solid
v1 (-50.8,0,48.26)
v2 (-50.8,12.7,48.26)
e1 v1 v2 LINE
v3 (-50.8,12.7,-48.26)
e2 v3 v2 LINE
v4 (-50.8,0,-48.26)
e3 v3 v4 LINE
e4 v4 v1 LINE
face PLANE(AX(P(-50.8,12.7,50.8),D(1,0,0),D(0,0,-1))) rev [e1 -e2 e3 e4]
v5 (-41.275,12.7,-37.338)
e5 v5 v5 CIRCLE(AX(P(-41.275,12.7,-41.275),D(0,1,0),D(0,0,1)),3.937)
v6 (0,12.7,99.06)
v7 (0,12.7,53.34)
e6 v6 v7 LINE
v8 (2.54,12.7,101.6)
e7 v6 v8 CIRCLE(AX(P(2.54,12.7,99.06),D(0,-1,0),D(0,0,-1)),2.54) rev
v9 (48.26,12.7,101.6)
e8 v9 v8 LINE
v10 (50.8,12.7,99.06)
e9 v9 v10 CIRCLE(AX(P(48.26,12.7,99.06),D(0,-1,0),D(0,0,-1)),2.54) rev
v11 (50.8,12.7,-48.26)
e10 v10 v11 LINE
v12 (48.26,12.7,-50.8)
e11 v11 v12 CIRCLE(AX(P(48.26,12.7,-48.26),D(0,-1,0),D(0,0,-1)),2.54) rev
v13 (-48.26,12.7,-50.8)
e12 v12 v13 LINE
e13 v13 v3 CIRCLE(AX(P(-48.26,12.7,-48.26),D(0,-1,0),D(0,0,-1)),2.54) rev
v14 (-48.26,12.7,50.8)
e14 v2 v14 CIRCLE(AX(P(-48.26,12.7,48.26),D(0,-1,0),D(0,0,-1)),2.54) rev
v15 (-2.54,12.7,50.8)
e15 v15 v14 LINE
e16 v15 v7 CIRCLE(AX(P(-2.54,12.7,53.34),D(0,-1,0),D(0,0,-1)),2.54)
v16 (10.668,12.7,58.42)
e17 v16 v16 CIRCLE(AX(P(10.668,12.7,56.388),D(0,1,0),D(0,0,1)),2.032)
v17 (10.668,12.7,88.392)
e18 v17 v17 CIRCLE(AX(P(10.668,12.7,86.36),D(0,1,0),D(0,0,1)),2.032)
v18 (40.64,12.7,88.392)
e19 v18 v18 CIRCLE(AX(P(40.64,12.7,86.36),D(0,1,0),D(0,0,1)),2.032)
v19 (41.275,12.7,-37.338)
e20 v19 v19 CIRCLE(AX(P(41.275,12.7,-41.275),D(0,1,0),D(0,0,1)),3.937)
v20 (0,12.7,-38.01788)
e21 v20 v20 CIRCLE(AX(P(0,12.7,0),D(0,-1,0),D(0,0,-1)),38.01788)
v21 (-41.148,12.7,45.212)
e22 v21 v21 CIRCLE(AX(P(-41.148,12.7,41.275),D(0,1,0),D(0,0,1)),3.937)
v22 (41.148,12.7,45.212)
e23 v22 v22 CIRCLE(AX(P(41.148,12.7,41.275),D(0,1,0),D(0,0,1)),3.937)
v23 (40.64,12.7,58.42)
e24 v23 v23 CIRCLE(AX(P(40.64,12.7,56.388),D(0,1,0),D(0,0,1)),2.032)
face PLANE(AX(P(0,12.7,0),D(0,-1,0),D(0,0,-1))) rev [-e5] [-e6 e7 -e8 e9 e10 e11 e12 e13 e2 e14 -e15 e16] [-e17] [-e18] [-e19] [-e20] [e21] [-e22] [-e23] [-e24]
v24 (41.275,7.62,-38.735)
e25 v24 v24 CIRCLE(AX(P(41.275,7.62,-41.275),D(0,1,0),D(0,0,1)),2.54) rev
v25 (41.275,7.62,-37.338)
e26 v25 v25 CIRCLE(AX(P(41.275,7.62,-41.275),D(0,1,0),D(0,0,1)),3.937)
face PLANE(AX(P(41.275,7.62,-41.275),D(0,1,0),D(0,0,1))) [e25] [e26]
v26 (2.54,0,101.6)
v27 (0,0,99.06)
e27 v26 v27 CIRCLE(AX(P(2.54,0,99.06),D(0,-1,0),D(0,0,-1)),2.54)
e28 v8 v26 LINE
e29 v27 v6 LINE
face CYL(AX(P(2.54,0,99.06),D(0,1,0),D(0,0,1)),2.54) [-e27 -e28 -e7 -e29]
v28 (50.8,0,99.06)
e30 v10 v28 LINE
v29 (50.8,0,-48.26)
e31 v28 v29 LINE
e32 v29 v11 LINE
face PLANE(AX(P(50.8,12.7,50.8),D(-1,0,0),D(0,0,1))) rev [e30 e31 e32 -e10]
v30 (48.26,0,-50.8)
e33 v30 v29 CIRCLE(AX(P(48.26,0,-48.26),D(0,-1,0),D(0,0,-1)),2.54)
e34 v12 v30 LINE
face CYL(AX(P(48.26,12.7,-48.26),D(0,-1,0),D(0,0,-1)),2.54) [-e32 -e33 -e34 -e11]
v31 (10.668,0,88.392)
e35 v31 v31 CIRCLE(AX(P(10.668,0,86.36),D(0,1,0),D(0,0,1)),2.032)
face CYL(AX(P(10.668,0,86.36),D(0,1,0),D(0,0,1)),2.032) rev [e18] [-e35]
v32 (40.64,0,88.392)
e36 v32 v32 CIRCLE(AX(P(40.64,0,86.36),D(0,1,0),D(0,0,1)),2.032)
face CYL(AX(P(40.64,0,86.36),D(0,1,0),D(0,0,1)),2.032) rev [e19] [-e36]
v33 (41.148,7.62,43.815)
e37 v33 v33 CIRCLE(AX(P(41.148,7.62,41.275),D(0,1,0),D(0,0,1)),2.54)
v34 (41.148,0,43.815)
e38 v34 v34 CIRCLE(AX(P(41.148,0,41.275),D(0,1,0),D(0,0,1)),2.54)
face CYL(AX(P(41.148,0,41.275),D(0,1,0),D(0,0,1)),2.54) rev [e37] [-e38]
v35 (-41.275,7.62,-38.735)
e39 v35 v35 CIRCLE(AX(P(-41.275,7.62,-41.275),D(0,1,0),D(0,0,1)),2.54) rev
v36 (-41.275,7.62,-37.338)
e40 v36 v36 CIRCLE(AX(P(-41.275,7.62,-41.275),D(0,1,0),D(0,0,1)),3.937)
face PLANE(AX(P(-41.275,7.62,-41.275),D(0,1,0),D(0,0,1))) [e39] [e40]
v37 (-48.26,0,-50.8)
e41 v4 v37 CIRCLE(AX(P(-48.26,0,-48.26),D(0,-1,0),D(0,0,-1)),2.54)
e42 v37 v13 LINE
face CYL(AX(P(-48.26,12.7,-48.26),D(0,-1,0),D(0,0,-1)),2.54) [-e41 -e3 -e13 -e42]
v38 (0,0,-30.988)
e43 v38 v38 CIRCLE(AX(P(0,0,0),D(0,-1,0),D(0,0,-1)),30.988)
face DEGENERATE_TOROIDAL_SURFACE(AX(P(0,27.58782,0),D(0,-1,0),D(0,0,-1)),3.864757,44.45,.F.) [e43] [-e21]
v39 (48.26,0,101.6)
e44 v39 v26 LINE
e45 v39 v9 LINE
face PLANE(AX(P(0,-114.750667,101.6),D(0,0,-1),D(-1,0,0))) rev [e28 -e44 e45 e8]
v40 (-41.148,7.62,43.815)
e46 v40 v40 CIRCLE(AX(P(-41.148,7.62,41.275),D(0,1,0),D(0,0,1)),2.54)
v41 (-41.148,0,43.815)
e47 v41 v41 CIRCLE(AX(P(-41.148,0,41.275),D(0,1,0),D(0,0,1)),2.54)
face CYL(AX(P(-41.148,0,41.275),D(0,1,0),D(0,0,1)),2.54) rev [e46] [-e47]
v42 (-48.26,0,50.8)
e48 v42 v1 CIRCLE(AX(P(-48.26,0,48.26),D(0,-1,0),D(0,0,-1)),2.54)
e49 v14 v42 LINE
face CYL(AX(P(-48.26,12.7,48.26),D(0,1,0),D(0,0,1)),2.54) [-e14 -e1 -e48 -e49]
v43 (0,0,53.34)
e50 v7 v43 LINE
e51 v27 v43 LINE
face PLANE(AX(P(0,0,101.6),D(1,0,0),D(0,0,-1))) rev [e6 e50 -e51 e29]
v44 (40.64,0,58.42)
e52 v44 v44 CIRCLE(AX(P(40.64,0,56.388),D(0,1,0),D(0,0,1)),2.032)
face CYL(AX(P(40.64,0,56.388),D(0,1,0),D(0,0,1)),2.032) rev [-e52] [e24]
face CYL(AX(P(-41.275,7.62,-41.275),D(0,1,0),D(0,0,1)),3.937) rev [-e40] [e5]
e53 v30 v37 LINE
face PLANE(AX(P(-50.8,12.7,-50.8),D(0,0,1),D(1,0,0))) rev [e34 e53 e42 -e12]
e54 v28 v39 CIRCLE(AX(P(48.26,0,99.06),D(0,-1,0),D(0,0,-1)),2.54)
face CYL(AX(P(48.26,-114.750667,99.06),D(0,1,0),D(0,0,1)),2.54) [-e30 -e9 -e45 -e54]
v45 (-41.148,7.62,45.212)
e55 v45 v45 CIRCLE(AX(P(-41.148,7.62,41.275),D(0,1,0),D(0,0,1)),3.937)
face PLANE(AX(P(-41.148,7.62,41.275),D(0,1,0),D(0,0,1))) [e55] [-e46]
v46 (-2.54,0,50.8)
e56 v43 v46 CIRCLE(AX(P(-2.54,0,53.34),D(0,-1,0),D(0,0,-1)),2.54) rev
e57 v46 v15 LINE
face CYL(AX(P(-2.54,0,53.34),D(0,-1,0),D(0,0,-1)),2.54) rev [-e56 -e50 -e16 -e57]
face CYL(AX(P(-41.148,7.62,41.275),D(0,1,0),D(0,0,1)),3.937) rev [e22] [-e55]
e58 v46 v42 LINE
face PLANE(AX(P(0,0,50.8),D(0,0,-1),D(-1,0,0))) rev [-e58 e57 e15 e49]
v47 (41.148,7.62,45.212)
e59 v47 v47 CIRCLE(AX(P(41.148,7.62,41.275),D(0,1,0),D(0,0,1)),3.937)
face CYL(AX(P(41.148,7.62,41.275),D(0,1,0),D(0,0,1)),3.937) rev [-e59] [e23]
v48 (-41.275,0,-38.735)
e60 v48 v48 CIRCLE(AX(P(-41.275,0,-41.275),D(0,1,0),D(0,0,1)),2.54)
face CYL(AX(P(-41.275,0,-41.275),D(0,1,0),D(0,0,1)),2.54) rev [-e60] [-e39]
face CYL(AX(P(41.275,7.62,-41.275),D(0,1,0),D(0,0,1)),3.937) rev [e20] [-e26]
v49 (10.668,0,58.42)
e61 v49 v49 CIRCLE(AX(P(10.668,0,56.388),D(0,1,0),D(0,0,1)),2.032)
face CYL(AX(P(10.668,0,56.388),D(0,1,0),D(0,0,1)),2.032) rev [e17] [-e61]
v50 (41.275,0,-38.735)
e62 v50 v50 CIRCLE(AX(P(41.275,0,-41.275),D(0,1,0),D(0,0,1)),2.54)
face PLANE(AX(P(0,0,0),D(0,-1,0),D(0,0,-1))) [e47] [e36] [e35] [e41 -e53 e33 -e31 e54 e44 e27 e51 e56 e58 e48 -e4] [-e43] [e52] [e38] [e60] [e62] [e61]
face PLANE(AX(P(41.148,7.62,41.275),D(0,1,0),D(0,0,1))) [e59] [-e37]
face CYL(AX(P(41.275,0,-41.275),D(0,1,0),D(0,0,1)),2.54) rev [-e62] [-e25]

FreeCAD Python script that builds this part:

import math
import FreeCAD as App
import Part
import Sketcher

V = App.Vector
Q = App.Units.Quantity


def edges_at(feature, points):
    """Names of the edges that pass closest to the given points."""
    edges = feature.Shape.Edges
    near = lambda p: min(range(len(edges)), key=lambda i: edges[i].distToShape(Part.Vertex(*p))[0])
    return sorted({f"Edge{near(p) + 1}" for p in points})

doc = App.newDocument("Part")
body = doc.addObject("PartDesign::Body", "Body")

# Sketch on XZ plane
sketch1 = body.newObject("Sketcher::SketchObject", "Sketch")
sketch1.AttachmentSupport = (doc.getObject("XZ_Plane"), [""])
sketch1.MapMode = "FlatFace"
sketch1.addGeometry([
    Part.LineSegment(V(-50.8, -50.8, 0), V(-50.8, 50.8, 0)),
    Part.LineSegment(V(-50.8, 50.8, 0), V(50.8, 50.8, 0)),
    Part.LineSegment(V(50.8, 50.8, 0), V(50.8, -50.8, 0)),
    Part.LineSegment(V(50.8, -50.8, 0), V(-50.8, -50.8, 0)),
], False)
sketch1.addConstraint([
    Sketcher.Constraint("Coincident", 0, 2, 1, 1),
    Sketcher.Constraint("Coincident", 1, 2, 2, 1),
    Sketcher.Constraint("Coincident", 2, 2, 3, 1),
    Sketcher.Constraint("Coincident", 3, 2, 0, 1),
    Sketcher.Constraint("Vertical", 0),
    Sketcher.Constraint("Horizontal", 1),
    Sketcher.Constraint("Vertical", 2),
    Sketcher.Constraint("Horizontal", 3),
    Sketcher.Constraint("Symmetric", 0, 2, 2, 2, -1, 1),
    Sketcher.Constraint("Equal", 3, 0),
    Sketcher.Constraint("DistanceX", 1, 1, 1, 2, Q("4 in")),
])
pad1 = body.newObject("PartDesign::Pad", "Pad")
pad1.Profile = sketch1
pad1.Length = Q("0.5 in")
pad1.Reversed = True

# Sketch on XY plane
sketch2 = body.newObject("Sketcher::SketchObject", "Sketch001")
sketch2.AttachmentSupport = (doc.getObject("XY_Plane"), [""])
sketch2.MapMode = "FlatFace"
sketch2.addGeometry([
    Part.LineSegment(V(0, 0, 0), V(30.988, 0, 0)),
    Part.ArcOfCircle(Part.Circle(V(-3.864757, 27.58782, 0), V(0, 0, 1), 44.45), math.radians(-38.363497), math.radians(-17.153584)),
    Part.LineSegment(V(38.608, 14.478, 0), V(0, 14.478, 0)),
    Part.LineSegment(V(0, 14.478, 0), V(0, 0, 0)),
], False)
sketch2.addConstraint([
    Sketcher.Constraint("Coincident", 0, 2, 1, 1),
    Sketcher.Constraint("Coincident", 1, 2, 2, 1),
    Sketcher.Constraint("Coincident", 2, 2, 3, 1),
    Sketcher.Constraint("Coincident", 3, 2, 0, 1),
    Sketcher.Constraint("Horizontal", 0),
    Sketcher.Constraint("Horizontal", 2),
    Sketcher.Constraint("Vertical", 3),
    Sketcher.Constraint("Coincident", 3, 2, -1, 1),
    Sketcher.Constraint("Radius", 1, Q("1.75 in")),
    Sketcher.Constraint("DistanceX", 0, 1, 0, 2, Q("1.22 in")),
    Sketcher.Constraint("DistanceX", 2, 2, 2, 1, Q("1.52 in")),
    Sketcher.Constraint("DistanceY", 3, 2, 3, 1, Q("0.57 in")),
])
groove = body.newObject("PartDesign::Groove", "Groove")
groove.Profile = sketch2
groove.ReferenceAxis = (sketch2, ["V_Axis"])
groove.Angle = 360

# Sketch on XZ plane
sketch3 = body.newObject("Sketcher::SketchObject", "Sketch002")
sketch3.AttachmentSupport = (doc.getObject("XZ_Plane"), [""])
sketch3.MapMode = "FlatFace"
sketch3.AttachmentOffset = App.Placement(V(0, 0, -0.5 * 25.4), App.Rotation())
sketch3.addGeometry([
    Part.Circle(V(-41.275, -41.275, 0), V(0, 0, 1), 2.54),
    Part.Circle(V(41.275, -41.275, 0), V(0, 0, 1), 2.54),
], False)
sketch3.addConstraint([
    Sketcher.Constraint("Equal", 0, 1),
    Sketcher.Constraint("Symmetric", 0, 3, 1, 3, -2),
    Sketcher.Constraint("Diameter", 0, Q("0.2 in")),
    Sketcher.Constraint("DistanceX", 0, 3, 1, 3, Q("3.25 in")),
    Sketcher.Constraint("DistanceY", 0, 3, -1, 1, Q("1.625 in")),
])
pocket1 = body.newObject("PartDesign::Pocket", "Pocket")
pocket1.Profile = sketch3
pocket1.Type = "ThroughAll"
pocket1.Reversed = True

# Sketch on XZ plane
sketch4 = body.newObject("Sketcher::SketchObject", "Sketch003")
sketch4.AttachmentSupport = (doc.getObject("XZ_Plane"), [""])
sketch4.MapMode = "FlatFace"
sketch4.AttachmentOffset = App.Placement(V(0, 0, -0.5 * 25.4), App.Rotation())
sketch4.addGeometry([
    Part.Circle(V(-41.275, -41.275, 0), V(0, 0, 1), 3.937),
    Part.Circle(V(41.275, -41.275, 0), V(0, 0, 1), 3.937),
], False)
sketch4.addConstraint([
    Sketcher.Constraint("Equal", 0, 1),
    Sketcher.Constraint("Symmetric", 0, 3, 1, 3, -2),
    Sketcher.Constraint("Diameter", 0, Q("0.31 in")),
    Sketcher.Constraint("DistanceX", 0, 3, 1, 3, Q("3.25 in")),
    Sketcher.Constraint("DistanceY", 0, 3, -1, 1, Q("1.625 in")),
])
pocket2 = body.newObject("PartDesign::Pocket", "Pocket001")
pocket2.Profile = sketch4
pocket2.Length = Q("0.2 in")
pocket2.Reversed = True
doc.recompute()

fillet = body.newObject("PartDesign::Fillet", "Fillet")
fillet.Base = (pocket2, edges_at(pocket2, [
    (50.8, 6.35, 50.8),
    (-50.8, 6.35, 50.8),
    (-50.8, 6.35, -50.8),
    (50.8, 6.35, -50.8),
]))
fillet.Radius = Q("0.1 in")

# Sketch on XZ plane
sketch5 = body.newObject("Sketcher::SketchObject", "Sketch004")
sketch5.AttachmentSupport = (doc.getObject("XZ_Plane"), [""])
sketch5.MapMode = "FlatFace"
sketch5.AttachmentOffset = App.Placement(V(0, 0, -0.5 * 25.4), App.Rotation())
sketch5.addGeometry([
    Part.LineSegment(V(-50.8, 101.6, 0), V(50.8, 101.6, 0)),  # 0
    Part.LineSegment(V(50.8, 101.6, 0), V(50.8, 48.26, 0)),  # 1
    Part.ArcOfCircle(Part.Circle(V(48.26, 48.26, 0), V(0, 0, 1), 2.54), math.radians(0), math.radians(90)),  # 2
    Part.LineSegment(V(48.26, 50.8, 0), V(-48.26, 50.8, 0)),  # 3
    Part.ArcOfCircle(Part.Circle(V(-48.26, 48.26, 0), V(0, 0, 1), 2.54), math.radians(90), math.radians(180)),  # 4
    Part.LineSegment(V(-50.8, 48.26, 0), V(-50.8, 101.6, 0)),  # 5
], False)
sketch5.addConstraint([
    Sketcher.Constraint("Coincident", 0, 2, 1, 1),
    Sketcher.Constraint("Tangent", 1, 2, 2, 1),
    Sketcher.Constraint("Tangent", 2, 2, 3, 1),
    Sketcher.Constraint("Tangent", 3, 2, 4, 1),
    Sketcher.Constraint("Tangent", 4, 2, 5, 1),
    Sketcher.Constraint("Coincident", 5, 2, 0, 1),
    Sketcher.Constraint("Horizontal", 0),
    Sketcher.Constraint("Vertical", 1),
    Sketcher.Constraint("Horizontal", 3),
    Sketcher.Constraint("Vertical", 5),
    Sketcher.Constraint("Equal", 2, 4),
    Sketcher.Constraint("Radius", 2, Q("0.1 in")),
    Sketcher.Constraint("DistanceX", 0, 1, 0, 2, Q("4 in")),
    Sketcher.Constraint("DistanceY", 1, 2, 1, 1, Q("2.1 in")),
    Sketcher.Constraint("DistanceX", -1, 1, 0, 2, Q("2 in")),
    Sketcher.Constraint("DistanceY", -1, 1, 0, 2, Q("4 in")),
])
pad2 = body.newObject("PartDesign::Pad", "Pad001")
pad2.Profile = sketch5
pad2.Length = Q("0.5 in")

# Sketch on XZ plane
sketch6 = body.newObject("Sketcher::SketchObject", "Sketch005")
sketch6.AttachmentSupport = (doc.getObject("XZ_Plane"), [""])
sketch6.MapMode = "FlatFace"
sketch6.AttachmentOffset = App.Placement(V(0, 0, -0.5 * 25.4), App.Rotation())
sketch6.addGeometry([
    Part.Circle(V(-41.148, 41.275, 0), V(0, 0, 1), 3.937),
    Part.Circle(V(41.148, 41.275, 0), V(0, 0, 1), 3.937),
], False)
sketch6.addConstraint([
    Sketcher.Constraint("Equal", 0, 1),
    Sketcher.Constraint("Symmetric", 0, 3, 1, 3, -2),
    Sketcher.Constraint("Diameter", 0, Q("0.31 in")),
    Sketcher.Constraint("DistanceX", 0, 3, -1, 1, Q("1.62 in")),
    Sketcher.Constraint("DistanceY", -1, 1, 0, 3, Q("1.625 in")),
])
pocket3 = body.newObject("PartDesign::Pocket", "Pocket002")
pocket3.Profile = sketch6
pocket3.Length = Q("0.2 in")
pocket3.Reversed = True

# Sketch on XZ plane
sketch7 = body.newObject("Sketcher::SketchObject", "Sketch006")
sketch7.AttachmentSupport = (doc.getObject("XZ_Plane"), [""])
sketch7.MapMode = "FlatFace"
sketch7.AttachmentOffset = App.Placement(V(0, 0, -0.5 * 25.4), App.Rotation())
sketch7.addGeometry([
    Part.Circle(V(-41.148, 41.275, 0), V(0, 0, 1), 2.54),
    Part.Circle(V(41.148, 41.275, 0), V(0, 0, 1), 2.54),
], False)
sketch7.addConstraint([
    Sketcher.Constraint("Equal", 0, 1),
    Sketcher.Constraint("Symmetric", 0, 3, 1, 3, -2),
    Sketcher.Constraint("Diameter", 0, Q("0.2 in")),
    Sketcher.Constraint("DistanceX", 0, 3, -1, 1, Q("1.62 in")),
    Sketcher.Constraint("DistanceY", -1, 1, 0, 3, Q("1.625 in")),
])
pocket4 = body.newObject("PartDesign::Pocket", "Pocket003")
pocket4.Profile = sketch7
pocket4.Type = "ThroughAll"
pocket4.Reversed = True
doc.recompute()

fillet2 = body.newObject("PartDesign::Fillet", "Fillet001")
fillet2.Base = (pocket4, edges_at(pocket4, [(-50.8, 6.35, 101.6), (50.8, 6.35, 101.6)]))
fillet2.Radius = Q("0.1 in")

# Sketch on XZ plane
sketch8 = body.newObject("Sketcher::SketchObject", "Sketch007")
sketch8.AttachmentSupport = (doc.getObject("XZ_Plane"), [""])
sketch8.MapMode = "FlatFace"
sketch8.AttachmentOffset = App.Placement(V(0, 0, -0.5 * 25.4), App.Rotation())
sketch8.addGeometry([
    Part.Circle(V(10.668, 56.388, 0), V(0, 0, 1), 2.032),
    Part.Circle(V(10.668, 86.36, 0), V(0, 0, 1), 2.032),
    Part.Circle(V(40.64, 86.36, 0), V(0, 0, 1), 2.032),
    Part.Circle(V(40.64, 56.388, 0), V(0, 0, 1), 2.032),
], False)
sketch8.addConstraint([
    Sketcher.Constraint("Equal", 0, 1),
    Sketcher.Constraint("Equal", 1, 2),
    Sketcher.Constraint("Equal", 2, 3),
    Sketcher.Constraint("Horizontal", 1, 3, 2, 3),
    Sketcher.Constraint("Horizontal", 0, 3, 3, 3),
    Sketcher.Constraint("Vertical", 0, 3, 1, 3),
    Sketcher.Constraint("Vertical", 2, 3, 3, 3),
    Sketcher.Constraint("Diameter", 0, Q("0.16 in")),
    Sketcher.Constraint("DistanceY", -1, 1, 1, 3, Q("3.4 in")),
    Sketcher.Constraint("DistanceX", -1, 1, 2, 3, Q("1.6 in")),
    Sketcher.Constraint("DistanceX", -1, 1, 0, 3, Q("0.42 in")),
    Sketcher.Constraint("DistanceY", -1, 1, 0, 3, Q("2.22 in")),
])
pocket5 = body.newObject("PartDesign::Pocket", "Pocket004")
pocket5.Profile = sketch8
pocket5.Type = "ThroughAll"
pocket5.Reversed = True

# Sketch on XZ plane
sketch9 = body.newObject("Sketcher::SketchObject", "Sketch008")
sketch9.AttachmentSupport = (doc.getObject("XZ_Plane"), [""])
sketch9.MapMode = "FlatFace"
sketch9.AttachmentOffset = App.Placement(V(0, 0, -0.5 * 25.4), App.Rotation())
sketch9.addGeometry([
    Part.LineSegment(V(-50.8, 50.8, 0), V(-50.8, 101.6, 0)),
    Part.LineSegment(V(-50.8, 101.6, 0), V(0, 101.6, 0)),
    Part.LineSegment(V(0, 101.6, 0), V(0, 50.8, 0)),
    Part.LineSegment(V(0, 50.8, 0), V(-50.8, 50.8, 0)),
], False)
sketch9.addConstraint([
    Sketcher.Constraint("Coincident", 0, 2, 1, 1),
    Sketcher.Constraint("Coincident", 1, 2, 2, 1),
    Sketcher.Constraint("Coincident", 2, 2, 3, 1),
    Sketcher.Constraint("Coincident", 3, 2, 0, 1),
    Sketcher.Constraint("Vertical", 0),
    Sketcher.Constraint("Horizontal", 1),
    Sketcher.Constraint("Vertical", 2),
    Sketcher.Constraint("Horizontal", 3),
    Sketcher.Constraint("PointOnObject", 1, 2, -2),
    Sketcher.Constraint("Equal", 3, 0),
    Sketcher.Constraint("DistanceX", 1, 1, 1, 2, Q("2 in")),
    Sketcher.Constraint("DistanceY", -1, 1, 0, 2, Q("4 in")),
])
pocket6 = body.newObject("PartDesign::Pocket", "Pocket005")
pocket6.Profile = sketch9
pocket6.Type = "ThroughAll"
pocket6.Reversed = True
doc.recompute()

fillet3 = body.newObject("PartDesign::Fillet", "Fillet002")
fillet3.Base = (pocket6, edges_at(pocket6, [(0, 6.35, 101.6), (0, 6.35, 50.8), (-50.8, 6.35, 50.8)]))
fillet3.Radius = Q("0.1 in")

doc.recompute()
